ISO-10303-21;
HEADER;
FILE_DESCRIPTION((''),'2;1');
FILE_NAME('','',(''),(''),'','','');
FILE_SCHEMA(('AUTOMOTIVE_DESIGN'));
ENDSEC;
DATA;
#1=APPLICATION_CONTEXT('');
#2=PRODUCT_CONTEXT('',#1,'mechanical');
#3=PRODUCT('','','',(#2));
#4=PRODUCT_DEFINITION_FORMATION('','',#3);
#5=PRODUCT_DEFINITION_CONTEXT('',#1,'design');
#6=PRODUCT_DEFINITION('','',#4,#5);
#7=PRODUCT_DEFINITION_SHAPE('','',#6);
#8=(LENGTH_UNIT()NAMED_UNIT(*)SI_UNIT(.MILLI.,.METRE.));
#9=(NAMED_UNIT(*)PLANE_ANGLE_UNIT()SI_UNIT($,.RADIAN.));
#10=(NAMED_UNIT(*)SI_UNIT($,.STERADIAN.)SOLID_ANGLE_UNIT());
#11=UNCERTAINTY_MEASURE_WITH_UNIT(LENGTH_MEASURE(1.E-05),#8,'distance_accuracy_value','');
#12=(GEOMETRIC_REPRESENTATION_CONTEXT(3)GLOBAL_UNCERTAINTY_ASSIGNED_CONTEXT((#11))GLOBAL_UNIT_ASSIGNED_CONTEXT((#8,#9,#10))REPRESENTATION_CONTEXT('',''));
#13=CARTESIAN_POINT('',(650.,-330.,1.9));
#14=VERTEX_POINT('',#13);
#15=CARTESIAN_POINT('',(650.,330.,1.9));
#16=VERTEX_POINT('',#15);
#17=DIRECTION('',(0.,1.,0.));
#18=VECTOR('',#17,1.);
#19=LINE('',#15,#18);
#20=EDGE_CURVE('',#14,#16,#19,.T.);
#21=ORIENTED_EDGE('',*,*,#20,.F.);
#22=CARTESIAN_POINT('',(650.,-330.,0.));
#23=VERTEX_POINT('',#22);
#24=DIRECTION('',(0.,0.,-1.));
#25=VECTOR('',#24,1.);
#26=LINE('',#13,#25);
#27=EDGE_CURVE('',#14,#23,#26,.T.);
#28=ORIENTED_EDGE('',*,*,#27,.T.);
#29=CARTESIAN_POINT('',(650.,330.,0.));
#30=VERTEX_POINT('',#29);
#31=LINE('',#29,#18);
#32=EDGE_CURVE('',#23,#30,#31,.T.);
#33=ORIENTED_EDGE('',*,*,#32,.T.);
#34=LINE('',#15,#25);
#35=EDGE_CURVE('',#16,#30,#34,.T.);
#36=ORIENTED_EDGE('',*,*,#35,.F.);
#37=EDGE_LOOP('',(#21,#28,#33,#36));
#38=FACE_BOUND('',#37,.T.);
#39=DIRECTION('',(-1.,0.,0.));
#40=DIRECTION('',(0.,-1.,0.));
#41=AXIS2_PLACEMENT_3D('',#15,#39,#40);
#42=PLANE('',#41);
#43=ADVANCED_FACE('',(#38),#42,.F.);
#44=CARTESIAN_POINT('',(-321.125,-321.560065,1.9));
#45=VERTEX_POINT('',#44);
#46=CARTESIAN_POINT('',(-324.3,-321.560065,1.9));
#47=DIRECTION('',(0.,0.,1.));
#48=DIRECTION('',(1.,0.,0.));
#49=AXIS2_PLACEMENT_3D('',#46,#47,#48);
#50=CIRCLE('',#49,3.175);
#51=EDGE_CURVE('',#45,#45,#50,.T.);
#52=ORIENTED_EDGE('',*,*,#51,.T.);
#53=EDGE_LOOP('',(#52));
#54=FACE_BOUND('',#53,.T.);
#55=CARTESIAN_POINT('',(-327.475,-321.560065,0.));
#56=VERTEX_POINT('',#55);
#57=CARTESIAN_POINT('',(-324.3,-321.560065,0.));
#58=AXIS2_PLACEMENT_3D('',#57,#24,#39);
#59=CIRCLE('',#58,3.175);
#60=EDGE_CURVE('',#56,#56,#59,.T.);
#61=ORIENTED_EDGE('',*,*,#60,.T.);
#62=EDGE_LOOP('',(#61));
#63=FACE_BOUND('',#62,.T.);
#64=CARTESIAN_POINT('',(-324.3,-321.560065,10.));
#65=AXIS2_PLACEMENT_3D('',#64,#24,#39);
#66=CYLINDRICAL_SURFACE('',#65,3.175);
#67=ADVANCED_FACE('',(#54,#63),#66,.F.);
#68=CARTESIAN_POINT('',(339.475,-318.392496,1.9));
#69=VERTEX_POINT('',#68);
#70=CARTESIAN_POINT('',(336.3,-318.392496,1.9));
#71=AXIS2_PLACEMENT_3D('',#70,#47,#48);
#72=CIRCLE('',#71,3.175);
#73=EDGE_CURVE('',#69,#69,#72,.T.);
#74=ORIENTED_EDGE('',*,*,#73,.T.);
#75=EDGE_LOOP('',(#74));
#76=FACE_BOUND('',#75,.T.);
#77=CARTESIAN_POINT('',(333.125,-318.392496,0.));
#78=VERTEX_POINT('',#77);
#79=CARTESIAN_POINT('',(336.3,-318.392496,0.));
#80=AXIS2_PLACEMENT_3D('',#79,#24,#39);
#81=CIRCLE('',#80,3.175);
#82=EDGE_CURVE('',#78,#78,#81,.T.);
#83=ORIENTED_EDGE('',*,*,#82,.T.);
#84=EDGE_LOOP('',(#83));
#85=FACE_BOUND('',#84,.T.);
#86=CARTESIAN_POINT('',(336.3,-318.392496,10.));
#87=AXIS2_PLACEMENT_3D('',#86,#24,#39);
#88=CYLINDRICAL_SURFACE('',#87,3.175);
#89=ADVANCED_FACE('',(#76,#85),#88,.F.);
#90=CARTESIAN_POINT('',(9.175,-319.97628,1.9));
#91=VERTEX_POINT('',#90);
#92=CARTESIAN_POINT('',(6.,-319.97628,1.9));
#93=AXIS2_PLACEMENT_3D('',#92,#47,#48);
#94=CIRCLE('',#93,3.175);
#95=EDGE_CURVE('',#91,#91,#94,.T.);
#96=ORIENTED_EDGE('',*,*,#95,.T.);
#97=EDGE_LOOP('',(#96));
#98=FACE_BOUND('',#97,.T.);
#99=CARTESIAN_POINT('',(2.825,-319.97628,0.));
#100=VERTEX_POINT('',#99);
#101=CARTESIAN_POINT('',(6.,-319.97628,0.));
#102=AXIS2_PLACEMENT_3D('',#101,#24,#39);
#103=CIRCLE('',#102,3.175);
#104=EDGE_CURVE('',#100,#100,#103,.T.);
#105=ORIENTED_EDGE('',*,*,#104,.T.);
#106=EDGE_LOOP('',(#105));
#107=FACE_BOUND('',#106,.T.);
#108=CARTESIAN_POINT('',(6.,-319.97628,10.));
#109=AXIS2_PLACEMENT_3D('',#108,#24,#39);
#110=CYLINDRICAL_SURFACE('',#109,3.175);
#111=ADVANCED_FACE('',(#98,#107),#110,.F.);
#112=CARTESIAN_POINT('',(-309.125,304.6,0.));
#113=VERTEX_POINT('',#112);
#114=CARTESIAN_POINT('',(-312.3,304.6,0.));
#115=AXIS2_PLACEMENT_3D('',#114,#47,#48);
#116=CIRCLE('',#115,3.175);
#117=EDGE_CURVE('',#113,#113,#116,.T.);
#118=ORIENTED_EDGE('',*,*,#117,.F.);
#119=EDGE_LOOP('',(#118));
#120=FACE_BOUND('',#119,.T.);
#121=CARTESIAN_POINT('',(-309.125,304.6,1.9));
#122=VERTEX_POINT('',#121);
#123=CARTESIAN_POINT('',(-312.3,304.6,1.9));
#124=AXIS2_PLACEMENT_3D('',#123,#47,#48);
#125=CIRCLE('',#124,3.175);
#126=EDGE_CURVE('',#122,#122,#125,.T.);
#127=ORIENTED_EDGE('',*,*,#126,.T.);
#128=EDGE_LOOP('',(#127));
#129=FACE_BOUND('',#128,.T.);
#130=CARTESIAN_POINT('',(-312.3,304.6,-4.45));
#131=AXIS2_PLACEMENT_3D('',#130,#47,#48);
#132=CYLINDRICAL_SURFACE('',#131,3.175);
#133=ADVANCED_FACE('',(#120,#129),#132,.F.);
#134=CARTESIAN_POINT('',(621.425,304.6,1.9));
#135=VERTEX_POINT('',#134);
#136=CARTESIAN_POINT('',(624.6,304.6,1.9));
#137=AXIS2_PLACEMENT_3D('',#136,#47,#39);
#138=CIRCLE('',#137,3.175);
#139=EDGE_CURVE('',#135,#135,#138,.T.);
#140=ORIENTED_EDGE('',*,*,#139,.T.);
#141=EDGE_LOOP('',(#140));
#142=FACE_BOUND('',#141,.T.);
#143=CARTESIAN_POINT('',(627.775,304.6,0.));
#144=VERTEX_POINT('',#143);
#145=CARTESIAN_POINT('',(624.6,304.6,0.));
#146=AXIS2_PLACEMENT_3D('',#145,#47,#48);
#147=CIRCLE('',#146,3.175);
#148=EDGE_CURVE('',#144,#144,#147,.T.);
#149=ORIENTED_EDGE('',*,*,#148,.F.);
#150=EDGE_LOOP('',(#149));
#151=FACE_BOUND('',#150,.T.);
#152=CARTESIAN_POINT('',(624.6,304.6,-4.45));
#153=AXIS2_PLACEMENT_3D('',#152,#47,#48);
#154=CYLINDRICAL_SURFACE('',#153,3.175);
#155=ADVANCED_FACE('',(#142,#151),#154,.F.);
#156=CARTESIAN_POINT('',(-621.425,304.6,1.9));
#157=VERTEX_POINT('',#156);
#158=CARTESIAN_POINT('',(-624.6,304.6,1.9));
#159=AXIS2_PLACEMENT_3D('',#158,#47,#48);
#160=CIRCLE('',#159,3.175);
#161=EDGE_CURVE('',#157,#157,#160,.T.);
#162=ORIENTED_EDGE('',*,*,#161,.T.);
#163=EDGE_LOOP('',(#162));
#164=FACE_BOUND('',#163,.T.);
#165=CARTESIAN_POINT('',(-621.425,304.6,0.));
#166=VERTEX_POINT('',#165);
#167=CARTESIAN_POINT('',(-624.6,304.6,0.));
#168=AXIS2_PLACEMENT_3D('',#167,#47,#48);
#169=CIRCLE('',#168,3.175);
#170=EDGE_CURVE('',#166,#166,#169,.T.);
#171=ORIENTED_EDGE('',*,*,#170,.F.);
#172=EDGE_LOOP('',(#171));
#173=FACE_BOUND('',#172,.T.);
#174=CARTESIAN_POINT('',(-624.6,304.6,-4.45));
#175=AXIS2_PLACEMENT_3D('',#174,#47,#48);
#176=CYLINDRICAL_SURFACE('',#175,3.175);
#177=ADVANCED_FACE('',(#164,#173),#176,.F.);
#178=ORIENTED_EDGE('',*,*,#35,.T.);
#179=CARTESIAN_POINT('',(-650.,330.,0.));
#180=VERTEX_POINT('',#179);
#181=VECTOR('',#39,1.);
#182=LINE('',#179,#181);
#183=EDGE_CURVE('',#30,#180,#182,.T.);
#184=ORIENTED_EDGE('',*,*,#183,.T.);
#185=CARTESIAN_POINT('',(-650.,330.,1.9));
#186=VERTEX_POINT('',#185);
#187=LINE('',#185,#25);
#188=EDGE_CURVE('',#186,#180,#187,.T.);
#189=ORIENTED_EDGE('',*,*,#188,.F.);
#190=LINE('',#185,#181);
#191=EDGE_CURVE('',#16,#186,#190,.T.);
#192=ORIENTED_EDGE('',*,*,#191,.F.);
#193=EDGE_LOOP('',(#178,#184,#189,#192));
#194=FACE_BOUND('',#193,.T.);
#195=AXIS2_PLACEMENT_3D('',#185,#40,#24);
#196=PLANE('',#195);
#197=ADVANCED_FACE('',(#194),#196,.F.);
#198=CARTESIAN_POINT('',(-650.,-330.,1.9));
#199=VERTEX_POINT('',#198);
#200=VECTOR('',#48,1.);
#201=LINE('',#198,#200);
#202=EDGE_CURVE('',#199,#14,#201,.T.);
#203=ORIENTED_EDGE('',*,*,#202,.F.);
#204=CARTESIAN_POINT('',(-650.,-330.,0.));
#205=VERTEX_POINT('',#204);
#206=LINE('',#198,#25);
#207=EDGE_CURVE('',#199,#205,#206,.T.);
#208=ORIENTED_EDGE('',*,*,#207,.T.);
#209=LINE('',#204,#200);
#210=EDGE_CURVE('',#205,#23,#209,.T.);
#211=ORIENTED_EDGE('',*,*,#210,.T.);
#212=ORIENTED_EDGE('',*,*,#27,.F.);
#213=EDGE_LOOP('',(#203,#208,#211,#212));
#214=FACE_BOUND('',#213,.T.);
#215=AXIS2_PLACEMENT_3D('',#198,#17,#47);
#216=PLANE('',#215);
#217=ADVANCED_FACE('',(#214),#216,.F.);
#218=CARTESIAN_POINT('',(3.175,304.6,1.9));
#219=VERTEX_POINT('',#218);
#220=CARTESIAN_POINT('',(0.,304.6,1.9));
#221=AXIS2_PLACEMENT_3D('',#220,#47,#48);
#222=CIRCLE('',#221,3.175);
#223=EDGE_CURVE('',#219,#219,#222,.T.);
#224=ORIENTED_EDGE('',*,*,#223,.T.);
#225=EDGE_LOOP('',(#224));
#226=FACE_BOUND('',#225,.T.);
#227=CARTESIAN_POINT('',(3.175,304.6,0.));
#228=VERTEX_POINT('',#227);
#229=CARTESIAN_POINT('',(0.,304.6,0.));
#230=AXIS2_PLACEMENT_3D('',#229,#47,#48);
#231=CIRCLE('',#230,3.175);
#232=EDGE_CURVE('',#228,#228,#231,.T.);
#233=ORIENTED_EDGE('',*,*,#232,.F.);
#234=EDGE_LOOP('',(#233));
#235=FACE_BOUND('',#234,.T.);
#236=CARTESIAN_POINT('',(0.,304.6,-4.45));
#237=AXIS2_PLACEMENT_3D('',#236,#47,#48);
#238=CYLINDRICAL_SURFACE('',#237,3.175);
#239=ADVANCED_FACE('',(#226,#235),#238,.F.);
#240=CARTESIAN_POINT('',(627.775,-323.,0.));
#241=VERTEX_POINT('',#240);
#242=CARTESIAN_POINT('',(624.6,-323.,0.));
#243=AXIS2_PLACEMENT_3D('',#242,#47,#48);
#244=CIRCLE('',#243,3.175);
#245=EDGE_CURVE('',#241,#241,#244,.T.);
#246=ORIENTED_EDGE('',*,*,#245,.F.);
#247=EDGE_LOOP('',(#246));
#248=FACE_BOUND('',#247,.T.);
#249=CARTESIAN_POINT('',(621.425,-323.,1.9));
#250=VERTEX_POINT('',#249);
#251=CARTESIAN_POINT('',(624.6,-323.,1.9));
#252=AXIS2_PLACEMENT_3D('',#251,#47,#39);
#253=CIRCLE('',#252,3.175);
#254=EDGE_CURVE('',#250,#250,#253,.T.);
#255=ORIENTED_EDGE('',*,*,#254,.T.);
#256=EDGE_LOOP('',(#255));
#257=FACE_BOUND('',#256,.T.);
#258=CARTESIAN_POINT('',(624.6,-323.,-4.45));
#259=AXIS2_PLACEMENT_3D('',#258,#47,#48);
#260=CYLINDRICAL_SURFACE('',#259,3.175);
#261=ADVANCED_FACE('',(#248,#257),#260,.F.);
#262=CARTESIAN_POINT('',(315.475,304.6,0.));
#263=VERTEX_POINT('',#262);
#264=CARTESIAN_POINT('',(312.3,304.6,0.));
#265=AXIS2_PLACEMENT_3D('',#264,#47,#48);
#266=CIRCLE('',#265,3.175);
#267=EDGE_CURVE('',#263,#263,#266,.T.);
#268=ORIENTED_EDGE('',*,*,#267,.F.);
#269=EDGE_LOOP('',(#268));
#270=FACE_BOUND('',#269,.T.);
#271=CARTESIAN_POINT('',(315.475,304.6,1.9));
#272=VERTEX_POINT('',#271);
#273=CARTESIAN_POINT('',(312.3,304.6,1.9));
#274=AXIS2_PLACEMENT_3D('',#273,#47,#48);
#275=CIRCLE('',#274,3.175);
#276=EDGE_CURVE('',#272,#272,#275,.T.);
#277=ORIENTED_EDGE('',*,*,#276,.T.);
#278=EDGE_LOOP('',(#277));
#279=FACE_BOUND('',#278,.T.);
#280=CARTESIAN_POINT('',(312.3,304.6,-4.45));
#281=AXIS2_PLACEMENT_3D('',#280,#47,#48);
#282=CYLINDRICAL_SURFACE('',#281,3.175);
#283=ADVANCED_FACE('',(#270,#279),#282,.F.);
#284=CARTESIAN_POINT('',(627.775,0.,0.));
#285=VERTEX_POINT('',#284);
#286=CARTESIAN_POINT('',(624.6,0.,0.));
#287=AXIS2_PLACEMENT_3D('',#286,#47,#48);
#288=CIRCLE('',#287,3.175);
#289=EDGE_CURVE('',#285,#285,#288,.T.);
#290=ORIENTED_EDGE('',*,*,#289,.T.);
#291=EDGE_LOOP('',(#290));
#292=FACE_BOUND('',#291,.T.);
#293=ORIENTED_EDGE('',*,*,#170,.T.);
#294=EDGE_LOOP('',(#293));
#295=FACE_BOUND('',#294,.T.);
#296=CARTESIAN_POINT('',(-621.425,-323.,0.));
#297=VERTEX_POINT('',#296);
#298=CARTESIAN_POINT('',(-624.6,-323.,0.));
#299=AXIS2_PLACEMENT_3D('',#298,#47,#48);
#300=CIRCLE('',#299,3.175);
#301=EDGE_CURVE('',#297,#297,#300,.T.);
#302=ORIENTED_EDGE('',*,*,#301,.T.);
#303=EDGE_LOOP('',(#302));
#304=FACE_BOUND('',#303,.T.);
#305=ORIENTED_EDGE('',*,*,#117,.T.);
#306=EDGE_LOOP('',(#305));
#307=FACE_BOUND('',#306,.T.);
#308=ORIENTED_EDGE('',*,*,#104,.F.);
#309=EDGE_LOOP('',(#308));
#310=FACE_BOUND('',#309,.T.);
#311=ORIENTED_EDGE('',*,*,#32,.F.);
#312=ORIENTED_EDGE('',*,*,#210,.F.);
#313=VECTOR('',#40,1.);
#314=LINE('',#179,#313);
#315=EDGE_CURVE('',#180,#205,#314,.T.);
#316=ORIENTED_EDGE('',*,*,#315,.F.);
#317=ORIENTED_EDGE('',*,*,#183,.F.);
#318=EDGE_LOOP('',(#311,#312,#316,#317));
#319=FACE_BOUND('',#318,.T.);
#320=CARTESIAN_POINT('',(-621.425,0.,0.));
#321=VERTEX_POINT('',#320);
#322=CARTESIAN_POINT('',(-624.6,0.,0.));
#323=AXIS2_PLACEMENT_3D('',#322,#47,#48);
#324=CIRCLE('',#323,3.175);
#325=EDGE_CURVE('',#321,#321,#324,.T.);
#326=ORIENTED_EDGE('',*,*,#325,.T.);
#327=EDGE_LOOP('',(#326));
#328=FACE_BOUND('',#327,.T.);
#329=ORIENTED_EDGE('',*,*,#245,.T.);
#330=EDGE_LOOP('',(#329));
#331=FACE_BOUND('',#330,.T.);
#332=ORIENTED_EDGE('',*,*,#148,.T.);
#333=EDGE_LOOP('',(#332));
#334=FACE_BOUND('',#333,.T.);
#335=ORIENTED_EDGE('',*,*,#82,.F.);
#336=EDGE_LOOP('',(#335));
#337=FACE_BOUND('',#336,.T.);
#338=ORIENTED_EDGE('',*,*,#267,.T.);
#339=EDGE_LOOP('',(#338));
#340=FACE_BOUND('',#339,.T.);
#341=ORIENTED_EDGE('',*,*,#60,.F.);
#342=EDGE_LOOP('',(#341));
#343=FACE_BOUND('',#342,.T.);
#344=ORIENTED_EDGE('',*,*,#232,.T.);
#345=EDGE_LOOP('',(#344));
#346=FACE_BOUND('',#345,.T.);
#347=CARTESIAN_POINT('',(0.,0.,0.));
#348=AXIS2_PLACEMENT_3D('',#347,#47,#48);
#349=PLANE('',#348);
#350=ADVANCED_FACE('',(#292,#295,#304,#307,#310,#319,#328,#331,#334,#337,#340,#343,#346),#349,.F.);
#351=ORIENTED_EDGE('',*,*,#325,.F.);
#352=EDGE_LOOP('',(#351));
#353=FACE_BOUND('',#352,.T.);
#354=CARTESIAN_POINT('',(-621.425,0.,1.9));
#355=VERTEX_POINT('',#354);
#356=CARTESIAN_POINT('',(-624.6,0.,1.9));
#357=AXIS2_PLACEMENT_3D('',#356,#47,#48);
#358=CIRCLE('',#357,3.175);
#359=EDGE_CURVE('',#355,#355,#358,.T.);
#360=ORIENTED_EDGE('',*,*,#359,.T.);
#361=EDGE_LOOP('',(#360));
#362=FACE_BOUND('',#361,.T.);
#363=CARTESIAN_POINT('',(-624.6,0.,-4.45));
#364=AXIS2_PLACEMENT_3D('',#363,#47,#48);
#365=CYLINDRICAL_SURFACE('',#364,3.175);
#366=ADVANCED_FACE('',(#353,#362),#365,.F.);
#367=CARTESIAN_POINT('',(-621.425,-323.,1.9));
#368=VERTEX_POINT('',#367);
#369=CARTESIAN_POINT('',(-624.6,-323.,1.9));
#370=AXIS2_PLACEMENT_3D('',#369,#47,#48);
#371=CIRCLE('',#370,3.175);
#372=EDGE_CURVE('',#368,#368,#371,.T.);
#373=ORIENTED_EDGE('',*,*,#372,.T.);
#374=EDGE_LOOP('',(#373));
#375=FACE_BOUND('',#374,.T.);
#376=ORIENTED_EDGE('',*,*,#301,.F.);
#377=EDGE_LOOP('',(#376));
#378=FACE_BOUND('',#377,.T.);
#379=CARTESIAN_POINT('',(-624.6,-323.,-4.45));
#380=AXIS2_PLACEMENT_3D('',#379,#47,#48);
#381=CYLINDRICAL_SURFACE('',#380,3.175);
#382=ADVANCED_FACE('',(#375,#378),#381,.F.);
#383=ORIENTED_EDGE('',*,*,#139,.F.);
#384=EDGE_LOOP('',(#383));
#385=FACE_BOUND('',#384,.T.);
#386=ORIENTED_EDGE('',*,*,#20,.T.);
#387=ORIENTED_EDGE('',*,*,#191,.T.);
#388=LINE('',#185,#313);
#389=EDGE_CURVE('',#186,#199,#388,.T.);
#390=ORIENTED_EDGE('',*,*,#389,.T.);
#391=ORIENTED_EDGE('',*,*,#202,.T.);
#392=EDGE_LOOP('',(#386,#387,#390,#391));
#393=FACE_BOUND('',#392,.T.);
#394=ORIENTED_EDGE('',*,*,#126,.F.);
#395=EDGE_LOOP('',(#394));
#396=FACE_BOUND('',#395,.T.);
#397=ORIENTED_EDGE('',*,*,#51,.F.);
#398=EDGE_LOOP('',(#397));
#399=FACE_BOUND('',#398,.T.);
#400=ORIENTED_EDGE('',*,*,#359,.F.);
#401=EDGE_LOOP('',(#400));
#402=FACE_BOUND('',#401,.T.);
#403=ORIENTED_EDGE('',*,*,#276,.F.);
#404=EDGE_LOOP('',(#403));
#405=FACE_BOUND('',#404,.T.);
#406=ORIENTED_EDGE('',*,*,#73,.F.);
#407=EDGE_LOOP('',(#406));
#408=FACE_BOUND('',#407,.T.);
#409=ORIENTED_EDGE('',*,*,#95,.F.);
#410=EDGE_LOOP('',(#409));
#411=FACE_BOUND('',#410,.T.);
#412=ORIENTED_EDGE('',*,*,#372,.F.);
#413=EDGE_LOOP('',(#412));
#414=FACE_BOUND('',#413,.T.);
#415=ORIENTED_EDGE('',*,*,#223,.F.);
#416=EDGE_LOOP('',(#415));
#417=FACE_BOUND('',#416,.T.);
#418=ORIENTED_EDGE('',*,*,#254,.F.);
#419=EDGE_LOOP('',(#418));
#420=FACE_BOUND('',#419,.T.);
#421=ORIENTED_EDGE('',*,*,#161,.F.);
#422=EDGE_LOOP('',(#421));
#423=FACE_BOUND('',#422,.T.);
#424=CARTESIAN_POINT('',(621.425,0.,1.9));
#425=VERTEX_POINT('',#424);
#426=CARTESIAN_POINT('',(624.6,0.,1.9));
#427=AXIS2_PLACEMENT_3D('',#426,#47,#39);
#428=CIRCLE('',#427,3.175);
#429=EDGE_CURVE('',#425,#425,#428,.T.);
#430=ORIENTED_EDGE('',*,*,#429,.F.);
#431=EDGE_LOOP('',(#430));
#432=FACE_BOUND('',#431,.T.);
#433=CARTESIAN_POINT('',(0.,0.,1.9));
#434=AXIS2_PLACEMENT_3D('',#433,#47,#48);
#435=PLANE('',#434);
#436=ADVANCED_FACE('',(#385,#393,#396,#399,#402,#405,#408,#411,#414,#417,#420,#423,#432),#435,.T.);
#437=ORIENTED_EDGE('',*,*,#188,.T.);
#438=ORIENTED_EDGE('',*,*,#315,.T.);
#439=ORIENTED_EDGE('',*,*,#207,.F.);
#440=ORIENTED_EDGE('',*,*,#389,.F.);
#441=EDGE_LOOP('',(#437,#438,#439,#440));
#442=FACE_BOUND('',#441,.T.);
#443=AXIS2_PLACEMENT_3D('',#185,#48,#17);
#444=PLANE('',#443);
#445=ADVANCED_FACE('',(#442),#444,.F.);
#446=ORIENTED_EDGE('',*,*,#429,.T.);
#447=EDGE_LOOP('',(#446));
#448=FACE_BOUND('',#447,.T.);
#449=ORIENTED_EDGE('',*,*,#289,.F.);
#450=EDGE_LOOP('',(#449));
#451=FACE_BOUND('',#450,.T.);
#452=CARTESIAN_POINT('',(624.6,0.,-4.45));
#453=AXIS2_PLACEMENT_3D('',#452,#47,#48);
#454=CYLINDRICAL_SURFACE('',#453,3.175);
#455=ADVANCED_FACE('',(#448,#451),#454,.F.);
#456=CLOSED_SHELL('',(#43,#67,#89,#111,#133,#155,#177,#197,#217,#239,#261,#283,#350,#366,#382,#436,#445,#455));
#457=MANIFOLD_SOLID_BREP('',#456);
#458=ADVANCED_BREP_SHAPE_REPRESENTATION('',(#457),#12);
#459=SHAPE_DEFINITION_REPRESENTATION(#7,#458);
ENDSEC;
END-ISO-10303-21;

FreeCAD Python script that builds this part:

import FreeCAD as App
import Part
import Sketcher

V = App.Vector

doc = App.newDocument("Part")
body = doc.addObject("PartDesign::Body", "Body")

sketch1 = doc.addObject("Sketcher::SketchObject", "Sketch")
body.addObject(sketch1)
sketch1.AttachmentSupport = (doc.XY_Plane, [""])
sketch1.MapMode = "FlatFace"
sketch1.addGeometry([
    Part.LineSegment(V(-650, 330, 0), V(-650, -330, 0)),
    Part.LineSegment(V(-650, -330, 0), V(650, -330, 0)),
    Part.LineSegment(V(650, -330, 0), V(650, 330, 0)),
    Part.LineSegment(V(650, 330, 0), V(-650, 330, 0)),
], False)
sketch1.addConstraint([
    Sketcher.Constraint("Coincident", 0, 2, 1, 1),
    Sketcher.Constraint("Coincident", 1, 2, 2, 1),
    Sketcher.Constraint("Coincident", 2, 2, 3, 1),
    Sketcher.Constraint("Coincident", 3, 2, 0, 1),
    Sketcher.Constraint("Vertical", 0),
    Sketcher.Constraint("Horizontal", 1),
    Sketcher.Constraint("Vertical", 2),
    Sketcher.Constraint("Horizontal", 3),
    Sketcher.Constraint("Symmetric", 0, 2, 2, 2, -1, 1),
    Sketcher.Constraint("DistanceX", 1, 1, 1, 2, 1300.0),
    Sketcher.Constraint("DistanceY", 0, 2, 0, 1, 660.0),
])
pad1 = doc.addObject("PartDesign::Pad", "Pad")
body.addObject(pad1)
pad1.Profile = sketch1
pad1.Length = 1.9

sketch2 = doc.addObject("Sketcher::SketchObject", "Sketch001")
body.addObject(sketch2)
sketch2.AttachmentSupport = (doc.XY_Plane, [""])
sketch2.MapMode = "FlatFace"
sketch2.AttachmentOffset = App.Placement(V(0, 0, 1.9), App.Rotation())
sketch2.addGeometry([
    Part.Circle(V(-624.6, 304.6, 0), V(0, 0, 1), 3.2),
    Part.Circle(V(0, 304.6, 0), V(0, 0, 1), 3.2),
    Part.Circle(V(624.6, 304.6, 0), V(0, 0, 1), 3.2),
    Part.Circle(V(-312.3, 304.6, 0), V(0, 0, 1), 3.2),
    Part.Circle(V(312.3, 304.6, 0), V(0, 0, 1), 3.2),
    Part.Circle(V(-624.6, 0, 0), V(0, 0, 1), 3.2),
    Part.Circle(V(624.6, 0, 0), V(0, 0, 1), 3.2),
    Part.Circle(V(-624.6, -323, 0), V(0, 0, 1), 3.2),
    Part.Circle(V(624.6, -323, 0), V(0, 0, 1), 3.2),
], False)
sketch2.addConstraint([
    Sketcher.Constraint("Equal", 0, 1),
    Sketcher.Constraint("Equal", 1, 2),
    Sketcher.Constraint("Equal", 2, 3),
    Sketcher.Constraint("Equal", 3, 4),
    Sketcher.Constraint("Equal", 4, 5),
    Sketcher.Constraint("Equal", 5, 6),
    Sketcher.Constraint("Equal", 6, 7),
    Sketcher.Constraint("Equal", 7, 8),
    Sketcher.Constraint("Symmetric", 5, 3, 6, 3, -1, 1),
    Sketcher.Constraint("Symmetric", 0, 3, 2, 3, -2),
    Sketcher.Constraint("Symmetric", 3, 3, 4, 3, -2),
    Sketcher.Constraint("Symmetric", 7, 3, 8, 3, -2),
    Sketcher.Constraint("PointOnObject", 1, 3, -2),
    Sketcher.Constraint("PointOnObject", 5, 3, -1),
    Sketcher.Constraint("Horizontal", 0, 3, 1, 3),
    Sketcher.Constraint("Horizontal", 2, 3, 3, 3),
    Sketcher.Constraint("Vertical", 0, 3, 5, 3),
    Sketcher.Constraint("Vertical", 5, 3, 7, 3),
    Sketcher.Constraint("Diameter", 0, 6.35),
    Sketcher.Constraint("DistanceY", 7, 3, -1, 1, 323.0),
    Sketcher.Constraint("DistanceX", 0, 3, -1, 1, 624.6),
    Sketcher.Constraint("DistanceY", -1, 1, 0, 3, 304.6),
    Sketcher.Constraint("DistanceX", 3, 3, -1, 1, 312.3),
])
pocket1 = doc.addObject("PartDesign::Pocket", "Pocket")
body.addObject(pocket1)
pocket1.Profile = sketch2
pocket1.Length = 6.35

sketch3 = doc.addObject("Sketcher::SketchObject", "Sketch002")
body.addObject(sketch3)
sketch3.AttachmentSupport = (doc.XY_Plane, [""])
sketch3.MapMode = "FlatFace"
sketch3.addGeometry([
    Part.Circle(V(-324.3, -321.6, 0), V(0, 0, 1), 3.2),
    Part.Circle(V(6, -320, 0), V(0, 0, 1), 3.2),
    Part.Circle(V(336.3, -318.4, 0), V(0, 0, 1), 3.2),
], False)
sketch3.addConstraint([
    Sketcher.Constraint("Equal", 0, 1),
    Sketcher.Constraint("Equal", 1, 2),
    Sketcher.Constraint("Diameter", 0, 6.35),
    Sketcher.Constraint("DistanceX", -1, 1, 1, 3, 6.0),
    Sketcher.Constraint("DistanceX", 0, 3, -1, 1, 324.3),
    Sketcher.Constraint("DistanceX", -1, 1, 2, 3, 336.3),
    Sketcher.Constraint("DistanceY", 1, 3, -1, 1, 319.97628),
    Sketcher.Constraint("DistanceY", 0, 3, 2, 3, 3.167569),
    Sketcher.Constraint("DistanceY", 0, 3, -1, 1, 321.560065),
])
pocket2 = doc.addObject("PartDesign::Pocket", "Pocket001")
body.addObject(pocket2)
pocket2.Profile = sketch3
pocket2.Length = 10
pocket2.Reversed = True

doc.recompute()
